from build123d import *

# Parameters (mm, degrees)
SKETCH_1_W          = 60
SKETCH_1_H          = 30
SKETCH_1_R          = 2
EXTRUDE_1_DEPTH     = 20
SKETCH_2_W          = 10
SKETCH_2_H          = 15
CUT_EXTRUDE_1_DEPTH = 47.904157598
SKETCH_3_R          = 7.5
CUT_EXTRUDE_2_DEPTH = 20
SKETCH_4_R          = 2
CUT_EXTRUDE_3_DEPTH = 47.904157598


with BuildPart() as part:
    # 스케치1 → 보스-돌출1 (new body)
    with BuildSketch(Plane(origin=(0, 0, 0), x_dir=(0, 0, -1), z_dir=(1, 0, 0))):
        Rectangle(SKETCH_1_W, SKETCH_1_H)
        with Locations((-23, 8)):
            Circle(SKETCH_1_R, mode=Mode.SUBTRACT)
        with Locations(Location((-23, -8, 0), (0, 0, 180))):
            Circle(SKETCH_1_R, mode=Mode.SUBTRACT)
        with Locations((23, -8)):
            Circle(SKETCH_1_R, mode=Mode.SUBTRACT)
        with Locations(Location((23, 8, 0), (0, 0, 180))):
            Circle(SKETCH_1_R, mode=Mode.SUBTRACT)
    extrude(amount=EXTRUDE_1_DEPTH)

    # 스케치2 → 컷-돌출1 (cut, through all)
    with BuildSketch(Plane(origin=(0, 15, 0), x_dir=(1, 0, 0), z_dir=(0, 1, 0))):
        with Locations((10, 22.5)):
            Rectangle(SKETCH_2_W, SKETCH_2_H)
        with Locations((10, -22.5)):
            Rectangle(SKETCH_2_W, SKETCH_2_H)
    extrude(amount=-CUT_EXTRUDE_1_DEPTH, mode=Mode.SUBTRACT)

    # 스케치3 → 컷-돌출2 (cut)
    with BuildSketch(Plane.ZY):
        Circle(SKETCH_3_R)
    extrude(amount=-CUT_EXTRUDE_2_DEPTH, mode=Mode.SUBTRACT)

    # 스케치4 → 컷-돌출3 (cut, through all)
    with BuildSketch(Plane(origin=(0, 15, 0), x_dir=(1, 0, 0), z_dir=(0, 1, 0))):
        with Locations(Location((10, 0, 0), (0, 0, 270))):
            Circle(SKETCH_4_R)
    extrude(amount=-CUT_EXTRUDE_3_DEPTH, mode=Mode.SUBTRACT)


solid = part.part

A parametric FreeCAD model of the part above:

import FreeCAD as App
import Part
import Sketcher

V = App.Vector

doc = App.newDocument("Part")
params = doc.addObject("Spreadsheet::Sheet", "Params")
for row, (alias, value) in enumerate([
    ("sketch1_diameter", "4 mm"),
    ("sketch1_width", "30 mm"),
    ("sketch1_height", "60 mm"),
    ("pad1_length", "20 mm"),
    ("sketch2_width", "10 mm"),
    ("sketch2_height", "15 mm"),
    ("sketch3_diameter", "15 mm"),
    ("pocket2_length", "20 mm"),
    ("sketch4_diameter", "4 mm"),
], start=1):
    params.set(f"A{row}", alias)
    params.set(f"B{row}", "=" + value)
    params.setAlias(f"B{row}", alias)

body = doc.addObject("PartDesign::Body", "Body")

# Sketch on YZ plane
sketch1 = body.newObject("Sketcher::SketchObject", "Sketch")
sketch1.AttachmentSupport = (doc.getObject("YZ_Plane"), [""])
sketch1.MapMode = "FlatFace"
sketch1.addGeometry([
    Part.LineSegment(V(15, 30, 0), V(-15, 30, 0)),  # 0
    Part.LineSegment(V(-15, 30, 0), V(-15, -30, 0)),  # 1
    Part.LineSegment(V(-15, -30, 0), V(15, -30, 0)),  # 2
    Part.LineSegment(V(15, -30, 0), V(15, 30, 0)),  # 3
    Part.Circle(V(-8, 23, 0), V(0, 0, 1), 2),  # 4
    Part.Circle(V(-8, -23, 0), V(0, 0, 1), 2),  # 5
    Part.Circle(V(8, 23, 0), V(0, 0, 1), 2),  # 6
    Part.Circle(V(8, -23, 0), V(0, 0, 1), 2),  # 7
], False)
sketch1.addConstraint([
    Sketcher.Constraint("Coincident", 0, 2, 1, 1),
    Sketcher.Constraint("Coincident", 1, 2, 2, 1),
    Sketcher.Constraint("Coincident", 2, 2, 3, 1),
    Sketcher.Constraint("Coincident", 3, 2, 0, 1),
    Sketcher.Constraint("Horizontal", 0),
    Sketcher.Constraint("Vertical", 1),
    Sketcher.Constraint("Horizontal", 2),
    Sketcher.Constraint("Vertical", 3),
    Sketcher.Constraint("Equal", 4, 5),
    Sketcher.Constraint("Equal", 5, 6),
    Sketcher.Constraint("Equal", 6, 7),
    Sketcher.Constraint("Symmetric", 5, 3, 6, 3, -1, 1),
    Sketcher.Constraint("Symmetric", 4, 3, 7, 3, -1, 1),
    Sketcher.Constraint("Symmetric", 0, 2, 2, 2, -1, 1),
    Sketcher.Constraint("Symmetric", 4, 3, 6, 3, -2),
    Sketcher.Constraint("Diameter", 4, 4.0),
    Sketcher.Constraint("DistanceX", 0, 2, 0, 1, 30.0),
    Sketcher.Constraint("DistanceY", 1, 2, 1, 1, 60.0),
    Sketcher.Constraint("DistanceX", 4, 3, -1, 1, 8.0),
    Sketcher.Constraint("DistanceY", -1, 1, 4, 3, 23.0),
])
sketch1.setExpression("Constraints[15]", "Params.sketch1_diameter")
sketch1.setExpression("Constraints[16]", "Params.sketch1_width")
sketch1.setExpression("Constraints[17]", "Params.sketch1_height")
pad1 = body.newObject("PartDesign::Pad", "Pad")
pad1.Profile = sketch1
pad1.setExpression("Length", "Params.pad1_length")

# Sketch on XZ plane
sketch2 = body.newObject("Sketcher::SketchObject", "Sketch001")
sketch2.AttachmentSupport = (doc.getObject("XZ_Plane"), [""])
sketch2.MapMode = "FlatFace"
sketch2.AttachmentOffset = App.Placement(V(0, 0, -15), App.Rotation())
sketch2.addGeometry([
    Part.LineSegment(V(5, -30, 0), V(5, -15, 0)),  # 0
    Part.LineSegment(V(5, -15, 0), V(15, -15, 0)),  # 1
    Part.LineSegment(V(15, -15, 0), V(15, -30, 0)),  # 2
    Part.LineSegment(V(15, -30, 0), V(5, -30, 0)),  # 3
    Part.LineSegment(V(5, 15, 0), V(5, 30, 0)),  # 4
    Part.LineSegment(V(5, 30, 0), V(15, 30, 0)),  # 5
    Part.LineSegment(V(15, 30, 0), V(15, 15, 0)),  # 6
    Part.LineSegment(V(15, 15, 0), V(5, 15, 0)),  # 7
], False)
sketch2.addConstraint([
    Sketcher.Constraint("Coincident", 0, 2, 1, 1),
    Sketcher.Constraint("Coincident", 1, 2, 2, 1),
    Sketcher.Constraint("Coincident", 2, 2, 3, 1),
    Sketcher.Constraint("Coincident", 3, 2, 0, 1),
    Sketcher.Constraint("Coincident", 4, 2, 5, 1),
    Sketcher.Constraint("Coincident", 5, 2, 6, 1),
    Sketcher.Constraint("Coincident", 6, 2, 7, 1),
    Sketcher.Constraint("Coincident", 7, 2, 4, 1),
    Sketcher.Constraint("Vertical", 0),
    Sketcher.Constraint("Horizontal", 1),
    Sketcher.Constraint("Vertical", 2),
    Sketcher.Constraint("Horizontal", 3),
    Sketcher.Constraint("Vertical", 4),
    Sketcher.Constraint("Horizontal", 5),
    Sketcher.Constraint("Vertical", 6),
    Sketcher.Constraint("Horizontal", 7),
    Sketcher.Constraint("Symmetric", 3, 2, 4, 2, -1),
    Sketcher.Constraint("Symmetric", 1, 2, 6, 2, -1),
    Sketcher.Constraint("DistanceX", 1, 1, 1, 2, 10.0),
    Sketcher.Constraint("DistanceY", 0, 1, 0, 2, 15.0),
    Sketcher.Constraint("DistanceX", -1, 1, 0, 2, 5.0),
    Sketcher.Constraint("DistanceY", 0, 2, -1, 1, 15.0),
])
sketch2.setExpression("Constraints[18]", "Params.sketch2_width")
sketch2.setExpression("Constraints[19]", "Params.sketch2_height")
pocket1 = body.newObject("PartDesign::Pocket", "Pocket")
pocket1.Profile = sketch2
pocket1.Type = "ThroughAll"
pocket1.Reversed = True

# Sketch on YZ plane
sketch3 = body.newObject("Sketcher::SketchObject", "Sketch002")
sketch3.AttachmentSupport = (doc.getObject("YZ_Plane"), [""])
sketch3.MapMode = "FlatFace"
sketch3.addGeometry(Part.Circle(V(0, 0, 0), V(0, 0, 1), 8), False)
sketch3.addConstraint([
    Sketcher.Constraint("Coincident", 0, 3, -1, 1),
    Sketcher.Constraint("Diameter", 0, 15.0),
])
sketch3.setExpression("Constraints[1]", "Params.sketch3_diameter")
pocket2 = body.newObject("PartDesign::Pocket", "Pocket001")
pocket2.Profile = sketch3
pocket2.setExpression("Length", "Params.pocket2_length")
pocket2.Reversed = True

# Sketch on XZ plane
sketch4 = body.newObject("Sketcher::SketchObject", "Sketch003")
sketch4.AttachmentSupport = (doc.getObject("XZ_Plane"), [""])
sketch4.MapMode = "FlatFace"
sketch4.AttachmentOffset = App.Placement(V(0, 0, -15), App.Rotation())
sketch4.addGeometry(Part.Circle(V(10, 0, 0), V(0, 0, 1), 2), False)
sketch4.addConstraint([
    Sketcher.Constraint("PointOnObject", 0, 3, -1),
    Sketcher.Constraint("Diameter", 0, 4.0),
    Sketcher.Constraint("DistanceX", -1, 1, 0, 3, 10.0),
])
sketch4.setExpression("Constraints[1]", "Params.sketch4_diameter")
pocket3 = body.newObject("PartDesign::Pocket", "Pocket002")
pocket3.Profile = sketch4
pocket3.Type = "ThroughAll"
pocket3.Reversed = True

doc.recompute()
